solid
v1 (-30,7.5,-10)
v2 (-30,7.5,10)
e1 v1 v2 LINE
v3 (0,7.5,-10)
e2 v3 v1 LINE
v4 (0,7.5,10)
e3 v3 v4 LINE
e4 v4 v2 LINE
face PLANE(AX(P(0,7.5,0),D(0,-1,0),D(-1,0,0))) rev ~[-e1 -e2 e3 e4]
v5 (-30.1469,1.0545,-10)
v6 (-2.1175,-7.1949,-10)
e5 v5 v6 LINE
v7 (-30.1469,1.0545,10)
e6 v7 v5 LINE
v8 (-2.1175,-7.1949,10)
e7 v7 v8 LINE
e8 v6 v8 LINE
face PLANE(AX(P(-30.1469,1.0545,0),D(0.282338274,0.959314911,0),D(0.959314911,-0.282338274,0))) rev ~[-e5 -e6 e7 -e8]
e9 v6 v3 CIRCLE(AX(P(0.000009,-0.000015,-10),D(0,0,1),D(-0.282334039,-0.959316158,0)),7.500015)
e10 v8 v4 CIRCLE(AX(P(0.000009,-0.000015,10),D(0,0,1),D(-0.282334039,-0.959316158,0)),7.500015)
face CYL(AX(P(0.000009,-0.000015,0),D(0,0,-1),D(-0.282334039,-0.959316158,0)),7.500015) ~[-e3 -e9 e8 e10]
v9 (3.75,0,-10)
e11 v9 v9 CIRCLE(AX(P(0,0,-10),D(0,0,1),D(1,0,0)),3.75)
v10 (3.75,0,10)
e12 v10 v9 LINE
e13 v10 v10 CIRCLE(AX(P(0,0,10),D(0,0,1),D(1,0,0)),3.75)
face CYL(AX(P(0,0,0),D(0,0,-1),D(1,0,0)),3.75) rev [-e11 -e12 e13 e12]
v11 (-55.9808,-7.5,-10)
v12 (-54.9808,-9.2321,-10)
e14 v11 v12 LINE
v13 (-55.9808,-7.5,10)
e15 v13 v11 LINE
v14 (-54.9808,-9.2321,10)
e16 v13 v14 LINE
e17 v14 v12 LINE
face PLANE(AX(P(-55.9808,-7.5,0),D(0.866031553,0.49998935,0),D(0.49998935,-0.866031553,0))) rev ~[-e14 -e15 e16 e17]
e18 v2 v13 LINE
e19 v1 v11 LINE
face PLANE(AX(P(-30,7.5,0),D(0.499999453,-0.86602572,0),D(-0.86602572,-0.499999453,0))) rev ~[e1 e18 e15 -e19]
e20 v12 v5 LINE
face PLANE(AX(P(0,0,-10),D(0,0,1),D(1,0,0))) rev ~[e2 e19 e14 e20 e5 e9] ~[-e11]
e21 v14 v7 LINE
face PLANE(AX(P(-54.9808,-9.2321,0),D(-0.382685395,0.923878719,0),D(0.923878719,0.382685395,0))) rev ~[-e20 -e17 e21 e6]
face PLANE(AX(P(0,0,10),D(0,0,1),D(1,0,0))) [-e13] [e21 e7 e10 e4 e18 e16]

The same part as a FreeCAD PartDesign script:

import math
import FreeCAD as App
import Part
import Sketcher
from FreeCAD import Vector
Q = App.Units.Quantity

doc = App.newDocument("Part")
body = doc.addObject("PartDesign::Body", "Body")

sketch1 = body.newObject("Sketcher::SketchObject", "Sketch")
sketch1.AttachmentSupport = (doc.getObject("XY_Plane"), [""])
sketch1.MapMode = "FlatFace"
sketch1.addGeometry(Part.LineSegment(Vector(-30.1, 1.1, 0), Vector(-2.1, -7.2, 0)), False)
sketch1.addGeometry(Part.ArcOfCircle(Part.Circle(Vector(0, 0, 0), Vector(0, 0, 1), 7.5), math.radians(-106), math.radians(90)), False)
sketch1.addGeometry(Part.LineSegment(Vector(0, 7.5, 0), Vector(-30, 7.5, 0)), False)
sketch1.addGeometry(Part.LineSegment(Vector(-30, 7.5, 0), Vector(-56, -7.5, 0)), False)
sketch1.addGeometry(Part.LineSegment(Vector(-56, -7.5, 0), Vector(-55, -9.2, 0)), False)
sketch1.addGeometry(Part.LineSegment(Vector(-55, -9.2, 0), Vector(-30.1, 1.1, 0)), False)
sketch1.addGeometry(Part.Circle(Vector(0, 0, 0), Vector(0, 0, 1), 3.8), False)
sketch1.addConstraint(Sketcher.Constraint("Tangent", 0, 2, 1, 1))
sketch1.addConstraint(Sketcher.Constraint("Tangent", 1, 2, 2, 1))
sketch1.addConstraint(Sketcher.Constraint("Coincident", 2, 2, 3, 1))
sketch1.addConstraint(Sketcher.Constraint("Coincident", 3, 2, 4, 1))
sketch1.addConstraint(Sketcher.Constraint("Coincident", 4, 2, 5, 1))
sketch1.addConstraint(Sketcher.Constraint("Coincident", 5, 2, 0, 1))
sketch1.addConstraint(Sketcher.Constraint("Horizontal", 2))
sketch1.addConstraint(Sketcher.Constraint("Coincident", 1, 3, -1, 1))
sketch1.addConstraint(Sketcher.Constraint("Coincident", 6, 3, -1, 1))
sketch1.addConstraint(Sketcher.Constraint("Perpendicular", 3, 4))
sketch1.addConstraint(Sketcher.Constraint("Diameter", 6, Q("7.5 mm")))
sketch1.addConstraint(Sketcher.Constraint("Radius", 1, Q("7.5 mm")))
sketch1.addConstraint(Sketcher.Constraint("DistanceX", 2, 2, 2, 1, Q("30 mm")))
sketch1.addConstraint(Sketcher.Constraint("Angle", 3, Q("-150 deg")))
sketch1.addConstraint(Sketcher.Constraint("Distance", 3, Q("30 mm")))
sketch1.addConstraint(Sketcher.Constraint("Distance", 4, Q("2 mm")))
sketch1.addConstraint(Sketcher.Constraint("Angle", 0, Q("-16.3998 deg")))
sketch1.addConstraint(Sketcher.Constraint("Angle", 5, Q("22.5001 deg")))
pad1 = body.newObject("PartDesign::Pad", "Pad")
pad1.Profile = sketch1
pad1.Length = 20
pad1.Midplane = True

doc.recompute()
